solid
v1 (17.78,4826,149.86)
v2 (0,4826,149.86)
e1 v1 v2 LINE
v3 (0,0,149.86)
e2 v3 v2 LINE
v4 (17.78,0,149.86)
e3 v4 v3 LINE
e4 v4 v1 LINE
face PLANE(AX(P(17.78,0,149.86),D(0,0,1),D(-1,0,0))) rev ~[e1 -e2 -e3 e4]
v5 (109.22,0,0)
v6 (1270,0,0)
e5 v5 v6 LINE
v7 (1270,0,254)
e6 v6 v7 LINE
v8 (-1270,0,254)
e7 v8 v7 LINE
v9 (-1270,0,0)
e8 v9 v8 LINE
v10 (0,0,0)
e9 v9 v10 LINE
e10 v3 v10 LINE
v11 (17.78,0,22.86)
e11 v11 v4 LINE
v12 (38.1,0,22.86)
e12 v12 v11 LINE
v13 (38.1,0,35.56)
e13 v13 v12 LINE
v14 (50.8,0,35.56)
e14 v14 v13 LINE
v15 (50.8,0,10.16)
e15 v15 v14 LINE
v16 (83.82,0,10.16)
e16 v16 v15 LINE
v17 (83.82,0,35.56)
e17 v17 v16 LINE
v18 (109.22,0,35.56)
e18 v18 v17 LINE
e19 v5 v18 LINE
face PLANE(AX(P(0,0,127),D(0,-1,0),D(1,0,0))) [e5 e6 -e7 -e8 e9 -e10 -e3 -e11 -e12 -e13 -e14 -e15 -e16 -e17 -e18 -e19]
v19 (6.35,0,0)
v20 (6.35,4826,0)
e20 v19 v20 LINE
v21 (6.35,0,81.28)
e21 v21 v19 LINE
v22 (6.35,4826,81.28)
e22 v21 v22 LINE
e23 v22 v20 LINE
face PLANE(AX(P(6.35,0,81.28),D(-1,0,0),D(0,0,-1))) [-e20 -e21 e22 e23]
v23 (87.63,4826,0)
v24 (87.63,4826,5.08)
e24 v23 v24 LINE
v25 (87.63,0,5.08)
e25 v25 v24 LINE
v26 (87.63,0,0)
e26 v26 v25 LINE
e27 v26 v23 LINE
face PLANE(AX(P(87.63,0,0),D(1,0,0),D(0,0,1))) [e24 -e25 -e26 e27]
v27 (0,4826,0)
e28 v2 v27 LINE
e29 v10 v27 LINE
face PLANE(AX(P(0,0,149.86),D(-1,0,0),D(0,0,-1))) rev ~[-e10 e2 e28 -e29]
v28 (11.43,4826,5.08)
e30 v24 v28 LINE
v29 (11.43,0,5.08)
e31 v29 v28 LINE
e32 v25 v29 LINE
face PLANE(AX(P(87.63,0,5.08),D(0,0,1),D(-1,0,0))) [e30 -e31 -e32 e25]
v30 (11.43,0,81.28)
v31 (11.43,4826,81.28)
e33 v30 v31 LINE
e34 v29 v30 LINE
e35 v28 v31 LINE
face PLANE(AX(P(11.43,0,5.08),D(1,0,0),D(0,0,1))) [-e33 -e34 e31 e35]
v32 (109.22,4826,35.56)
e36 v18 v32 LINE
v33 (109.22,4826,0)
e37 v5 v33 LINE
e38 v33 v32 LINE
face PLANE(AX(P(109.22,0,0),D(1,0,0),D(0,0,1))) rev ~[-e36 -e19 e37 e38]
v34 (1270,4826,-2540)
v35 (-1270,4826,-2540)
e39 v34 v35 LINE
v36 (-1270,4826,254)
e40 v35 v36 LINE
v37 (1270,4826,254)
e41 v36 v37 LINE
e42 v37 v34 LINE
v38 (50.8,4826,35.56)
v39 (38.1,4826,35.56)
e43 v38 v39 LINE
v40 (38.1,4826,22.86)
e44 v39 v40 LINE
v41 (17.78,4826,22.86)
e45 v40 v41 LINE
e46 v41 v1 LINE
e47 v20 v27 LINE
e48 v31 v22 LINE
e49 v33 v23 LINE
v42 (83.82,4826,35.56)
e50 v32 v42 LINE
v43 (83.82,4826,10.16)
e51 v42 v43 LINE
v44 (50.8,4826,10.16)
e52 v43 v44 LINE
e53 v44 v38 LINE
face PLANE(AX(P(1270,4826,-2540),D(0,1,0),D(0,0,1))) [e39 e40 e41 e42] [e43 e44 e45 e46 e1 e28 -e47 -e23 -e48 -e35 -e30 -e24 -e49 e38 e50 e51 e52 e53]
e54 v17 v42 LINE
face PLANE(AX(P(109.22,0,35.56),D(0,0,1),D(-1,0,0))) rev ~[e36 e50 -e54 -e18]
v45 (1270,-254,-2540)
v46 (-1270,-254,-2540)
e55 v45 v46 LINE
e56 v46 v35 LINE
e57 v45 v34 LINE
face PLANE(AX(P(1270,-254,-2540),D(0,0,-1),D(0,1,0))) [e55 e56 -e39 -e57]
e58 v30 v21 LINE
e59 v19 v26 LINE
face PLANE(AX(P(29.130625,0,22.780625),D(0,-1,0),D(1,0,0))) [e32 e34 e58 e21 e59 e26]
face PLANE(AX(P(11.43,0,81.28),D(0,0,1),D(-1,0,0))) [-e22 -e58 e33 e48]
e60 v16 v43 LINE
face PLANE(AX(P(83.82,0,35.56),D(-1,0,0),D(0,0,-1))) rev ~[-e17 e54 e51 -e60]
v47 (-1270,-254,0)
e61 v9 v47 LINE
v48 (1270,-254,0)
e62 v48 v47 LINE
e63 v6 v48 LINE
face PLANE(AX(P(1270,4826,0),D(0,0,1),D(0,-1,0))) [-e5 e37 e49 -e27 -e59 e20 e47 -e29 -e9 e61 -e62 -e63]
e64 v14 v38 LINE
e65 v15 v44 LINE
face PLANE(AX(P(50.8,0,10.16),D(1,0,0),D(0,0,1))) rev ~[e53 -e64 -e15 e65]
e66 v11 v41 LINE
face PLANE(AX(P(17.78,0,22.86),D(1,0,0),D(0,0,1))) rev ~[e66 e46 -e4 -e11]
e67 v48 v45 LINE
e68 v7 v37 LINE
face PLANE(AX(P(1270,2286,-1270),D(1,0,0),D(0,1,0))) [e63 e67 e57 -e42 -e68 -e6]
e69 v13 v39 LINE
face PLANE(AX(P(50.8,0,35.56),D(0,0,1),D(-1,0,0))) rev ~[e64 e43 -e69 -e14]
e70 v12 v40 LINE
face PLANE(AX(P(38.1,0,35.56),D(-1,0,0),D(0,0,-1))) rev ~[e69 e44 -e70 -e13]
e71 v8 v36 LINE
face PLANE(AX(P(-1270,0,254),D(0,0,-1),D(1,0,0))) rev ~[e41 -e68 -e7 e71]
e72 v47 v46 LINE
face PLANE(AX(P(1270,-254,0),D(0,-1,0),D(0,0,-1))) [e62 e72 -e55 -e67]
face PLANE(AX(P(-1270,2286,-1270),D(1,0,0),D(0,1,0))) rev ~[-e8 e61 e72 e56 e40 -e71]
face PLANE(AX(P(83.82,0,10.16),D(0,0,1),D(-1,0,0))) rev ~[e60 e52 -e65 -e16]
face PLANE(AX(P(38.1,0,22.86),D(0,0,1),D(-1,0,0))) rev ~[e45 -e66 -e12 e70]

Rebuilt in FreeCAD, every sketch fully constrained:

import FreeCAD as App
import Part
import Sketcher
Q = App.Units.Quantity

doc = App.newDocument("Part")
params = doc.addObject("Spreadsheet::Sheet", "Params")
for row, (alias, value) in enumerate([
    ("sketch1_width", "100 in"),
    ("sketch1_height", "10 in"),
    ("pad1_length", "190 in"),
    ("sketch2_width", "1 in"),
    ("sketch2_height", "5 in"),
    ("sketch2_width2", "4.3 in"),
    ("sketch2_width3", "1.3 in"),
    ("sketch2_width4", "0.5 in"),
    ("pocket1_length", "190 in"),
    ("sketch3_width", "200 in"),
    ("sketch3_height", "100 in"),
    ("pad2_length", "100 in"),
    ("sketch4_width", "3 in"),
    ("sketch4_width2", "3.2 in"),
    ("pad3_length", "190 in"),
], start=1):
    params.set(f"A{row}", alias)
    params.set(f"B{row}", "=" + value)
    params.setAlias(f"B{row}", alias)

body = doc.addObject("PartDesign::Body", "Body")

sketch1 = doc.addObject("Sketcher::SketchObject", "Sketch")
body.addObject(sketch1)
sketch1.AttachmentSupport = (doc.XZ_Plane, [""])
sketch1.MapMode = "FlatFace"
sketch1.addGeometry([
    Part.LineSegment(App.Vector(-1270, 254, 0), App.Vector(-1270, 0, 0)),
    Part.LineSegment(App.Vector(-1270, 0, 0), App.Vector(1270, 0, 0)),
    Part.LineSegment(App.Vector(1270, 0, 0), App.Vector(1270, 254, 0)),
    Part.LineSegment(App.Vector(1270, 254, 0), App.Vector(-1270, 254, 0)),
], False)
sketch1.addConstraint([
    Sketcher.Constraint("Coincident", 0, 2, 1, 1),
    Sketcher.Constraint("Coincident", 1, 2, 2, 1),
    Sketcher.Constraint("Coincident", 2, 2, 3, 1),
    Sketcher.Constraint("Coincident", 3, 2, 0, 1),
    Sketcher.Constraint("Vertical", 0),
    Sketcher.Constraint("Horizontal", 1),
    Sketcher.Constraint("Vertical", 2),
    Sketcher.Constraint("Horizontal", 3),
    Sketcher.Constraint("Symmetric", 0, 2, 1, 2, -1, 1),
    Sketcher.Constraint("DistanceX", 1, 1, 1, 2, Q("100 in")),
    Sketcher.Constraint("DistanceY", 0, 2, 0, 1, Q("10 in")),
])
sketch1.setExpression("Constraints[9]", "Params.sketch1_width")
sketch1.setExpression("Constraints[10]", "Params.sketch1_height")
pad1 = doc.addObject("PartDesign::Pad", "Pad")
body.addObject(pad1)
pad1.Profile = sketch1
pad1.setExpression("Length", "Params.pad1_length")
pad1.Reversed = True

sketch2 = doc.addObject("Sketcher::SketchObject", "Sketch001")
body.addObject(sketch2)
sketch2.AttachmentSupport = (doc.XZ_Plane, [""])
sketch2.MapMode = "FlatFace"
sketch2.addGeometry([
    Part.LineSegment(App.Vector(0, 150, 0), App.Vector(0, 0, 0)),
    Part.LineSegment(App.Vector(0, 0, 0), App.Vector(109, 0, 0)),
    Part.LineSegment(App.Vector(109, 0, 0), App.Vector(109, 36, 0)),
    Part.LineSegment(App.Vector(109, 36, 0), App.Vector(84, 36, 0)),
    Part.LineSegment(App.Vector(84, 36, 0), App.Vector(84, 10, 0)),
    Part.LineSegment(App.Vector(84, 10, 0), App.Vector(51, 10, 0)),
    Part.LineSegment(App.Vector(51, 10, 0), App.Vector(51, 36, 0)),
    Part.LineSegment(App.Vector(51, 36, 0), App.Vector(38, 36, 0)),
    Part.LineSegment(App.Vector(38, 36, 0), App.Vector(38, 23, 0)),
    Part.LineSegment(App.Vector(38, 23, 0), App.Vector(18, 23, 0)),
    Part.LineSegment(App.Vector(18, 23, 0), App.Vector(18, 150, 0)),
    Part.LineSegment(App.Vector(18, 150, 0), App.Vector(0, 150, 0)),
], False)
sketch2.addConstraint([
    Sketcher.Constraint("Coincident", 0, 2, 1, 1),
    Sketcher.Constraint("Coincident", 1, 2, 2, 1),
    Sketcher.Constraint("Coincident", 2, 2, 3, 1),
    Sketcher.Constraint("Coincident", 3, 2, 4, 1),
    Sketcher.Constraint("Coincident", 4, 2, 5, 1),
    Sketcher.Constraint("Coincident", 5, 2, 6, 1),
    Sketcher.Constraint("Coincident", 6, 2, 7, 1),
    Sketcher.Constraint("Coincident", 7, 2, 8, 1),
    Sketcher.Constraint("Coincident", 8, 2, 9, 1),
    Sketcher.Constraint("Coincident", 9, 2, 10, 1),
    Sketcher.Constraint("Coincident", 10, 2, 11, 1),
    Sketcher.Constraint("Coincident", 11, 2, 0, 1),
    Sketcher.Constraint("Vertical", 0),
    Sketcher.Constraint("Horizontal", 1),
    Sketcher.Constraint("Vertical", 2),
    Sketcher.Constraint("Horizontal", 3),
    Sketcher.Constraint("Vertical", 4),
    Sketcher.Constraint("Horizontal", 5),
    Sketcher.Constraint("Vertical", 6),
    Sketcher.Constraint("Horizontal", 7),
    Sketcher.Constraint("Vertical", 8),
    Sketcher.Constraint("Horizontal", 9),
    Sketcher.Constraint("Vertical", 10),
    Sketcher.Constraint("Horizontal", 11),
    Sketcher.Constraint("Coincident", 0, 2, -1, 1),
    Sketcher.Constraint("Horizontal", 3, 2, 6, 2),
    Sketcher.Constraint("Equal", 3, 4),
    Sketcher.Constraint("Equal", 7, 8),
    Sketcher.Constraint("DistanceX", 3, 2, 3, 1, Q("1 in")),
    Sketcher.Constraint("DistanceY", 10, 1, 10, 2, Q("5 in")),
    Sketcher.Constraint("DistanceX", 1, 1, 1, 2, Q("4.3 in")),
    Sketcher.Constraint("DistanceX", 5, 2, 5, 1, Q("1.3 in")),
    Sketcher.Constraint("DistanceX", 7, 2, 7, 1, Q("0.5 in")),
    Sketcher.Constraint("DistanceX", 9, 2, 9, 1, Q("0.8 in")),
    Sketcher.Constraint("DistanceY", 0, 2, 0, 1, Q("5.9 in")),
])
sketch2.setExpression("Constraints[28]", "Params.sketch2_width")
sketch2.setExpression("Constraints[29]", "Params.sketch2_height")
sketch2.setExpression("Constraints[30]", "Params.sketch2_width2")
sketch2.setExpression("Constraints[31]", "Params.sketch2_width3")
sketch2.setExpression("Constraints[32]", "Params.sketch2_width4")
pocket1 = doc.addObject("PartDesign::Pocket", "Pocket")
body.addObject(pocket1)
pocket1.Profile = sketch2
pocket1.setExpression("Length", "Params.pocket1_length")

sketch3 = doc.addObject("Sketcher::SketchObject", "Sketch002")
body.addObject(sketch3)
sketch3.AttachmentSupport = (doc.YZ_Plane, [""])
sketch3.MapMode = "FlatFace"
sketch3.AttachmentOffset = App.Placement(App.Vector(0, 0, 50 * 25.4), App.Rotation())
sketch3.addGeometry([
    Part.LineSegment(App.Vector(4826, -2540, 0), App.Vector(4826, 0, 0)),
    Part.LineSegment(App.Vector(4826, 0, 0), App.Vector(-254, 0, 0)),
    Part.LineSegment(App.Vector(-254, 0, 0), App.Vector(-254, -2540, 0)),
    Part.LineSegment(App.Vector(-254, -2540, 0), App.Vector(4826, -2540, 0)),
], False)
sketch3.addConstraint([
    Sketcher.Constraint("Coincident", 0, 2, 1, 1),
    Sketcher.Constraint("Coincident", 1, 2, 2, 1),
    Sketcher.Constraint("Coincident", 2, 2, 3, 1),
    Sketcher.Constraint("Coincident", 3, 2, 0, 1),
    Sketcher.Constraint("Vertical", 0),
    Sketcher.Constraint("Horizontal", 1),
    Sketcher.Constraint("Vertical", 2),
    Sketcher.Constraint("Horizontal", 3),
    Sketcher.Constraint("PointOnObject", 0, 2, -1),
    Sketcher.Constraint("DistanceX", 1, 2, 1, 1, Q("200 in")),
    Sketcher.Constraint("DistanceY", 0, 1, 0, 2, Q("100 in")),
    Sketcher.Constraint("DistanceX", -1, 1, 0, 2, Q("190 in")),
])
sketch3.setExpression("Constraints[9]", "Params.sketch3_width")
sketch3.setExpression("Constraints[10]", "Params.sketch3_height")
pad2 = doc.addObject("PartDesign::Pad", "Pad001")
body.addObject(pad2)
pad2.Profile = sketch3
pad2.setExpression("Length", "Params.pad2_length")
pad2.Reversed = True

sketch4 = doc.addObject("Sketcher::SketchObject", "Sketch003")
body.addObject(sketch4)
sketch4.AttachmentSupport = (doc.XZ_Plane, [""])
sketch4.MapMode = "FlatFace"
sketch4.addGeometry([
    Part.LineSegment(App.Vector(6, 81, 0), App.Vector(6, 0, 0)),
    Part.LineSegment(App.Vector(6, 0, 0), App.Vector(88, 0, 0)),
    Part.LineSegment(App.Vector(88, 0, 0), App.Vector(88, 5, 0)),
    Part.LineSegment(App.Vector(88, 5, 0), App.Vector(11, 5, 0)),
    Part.LineSegment(App.Vector(11, 5, 0), App.Vector(11, 81, 0)),
    Part.LineSegment(App.Vector(11, 81, 0), App.Vector(6, 81, 0)),
], False)
sketch4.addConstraint([
    Sketcher.Constraint("Coincident", 0, 2, 1, 1),
    Sketcher.Constraint("Coincident", 1, 2, 2, 1),
    Sketcher.Constraint("Coincident", 2, 2, 3, 1),
    Sketcher.Constraint("Coincident", 3, 2, 4, 1),
    Sketcher.Constraint("Coincident", 4, 2, 5, 1),
    Sketcher.Constraint("Coincident", 5, 2, 0, 1),
    Sketcher.Constraint("Vertical", 0),
    Sketcher.Constraint("Horizontal", 1),
    Sketcher.Constraint("Vertical", 2),
    Sketcher.Constraint("Horizontal", 3),
    Sketcher.Constraint("Vertical", 4),
    Sketcher.Constraint("Horizontal", 5),
    Sketcher.Constraint("PointOnObject", 0, 2, -1),
    Sketcher.Constraint("Equal", 1, 0),
    Sketcher.Constraint("Equal", 5, 2),
    Sketcher.Constraint("DistanceX", 3, 2, 3, 1, Q("3 in")),
    Sketcher.Constraint("DistanceX", 1, 1, 1, 2, Q("3.2 in")),
    Sketcher.Constraint("DistanceX", -1, 1, 0, 2, Q("0.25 in")),
])
sketch4.setExpression("Constraints[15]", "Params.sketch4_width")
sketch4.setExpression("Constraints[16]", "Params.sketch4_width2")
pad3 = doc.addObject("PartDesign::Pad", "Pad002")
body.addObject(pad3)
pad3.Profile = sketch4
pad3.setExpression("Length", "Params.pad3_length")
pad3.Reversed = True

doc.recompute()
